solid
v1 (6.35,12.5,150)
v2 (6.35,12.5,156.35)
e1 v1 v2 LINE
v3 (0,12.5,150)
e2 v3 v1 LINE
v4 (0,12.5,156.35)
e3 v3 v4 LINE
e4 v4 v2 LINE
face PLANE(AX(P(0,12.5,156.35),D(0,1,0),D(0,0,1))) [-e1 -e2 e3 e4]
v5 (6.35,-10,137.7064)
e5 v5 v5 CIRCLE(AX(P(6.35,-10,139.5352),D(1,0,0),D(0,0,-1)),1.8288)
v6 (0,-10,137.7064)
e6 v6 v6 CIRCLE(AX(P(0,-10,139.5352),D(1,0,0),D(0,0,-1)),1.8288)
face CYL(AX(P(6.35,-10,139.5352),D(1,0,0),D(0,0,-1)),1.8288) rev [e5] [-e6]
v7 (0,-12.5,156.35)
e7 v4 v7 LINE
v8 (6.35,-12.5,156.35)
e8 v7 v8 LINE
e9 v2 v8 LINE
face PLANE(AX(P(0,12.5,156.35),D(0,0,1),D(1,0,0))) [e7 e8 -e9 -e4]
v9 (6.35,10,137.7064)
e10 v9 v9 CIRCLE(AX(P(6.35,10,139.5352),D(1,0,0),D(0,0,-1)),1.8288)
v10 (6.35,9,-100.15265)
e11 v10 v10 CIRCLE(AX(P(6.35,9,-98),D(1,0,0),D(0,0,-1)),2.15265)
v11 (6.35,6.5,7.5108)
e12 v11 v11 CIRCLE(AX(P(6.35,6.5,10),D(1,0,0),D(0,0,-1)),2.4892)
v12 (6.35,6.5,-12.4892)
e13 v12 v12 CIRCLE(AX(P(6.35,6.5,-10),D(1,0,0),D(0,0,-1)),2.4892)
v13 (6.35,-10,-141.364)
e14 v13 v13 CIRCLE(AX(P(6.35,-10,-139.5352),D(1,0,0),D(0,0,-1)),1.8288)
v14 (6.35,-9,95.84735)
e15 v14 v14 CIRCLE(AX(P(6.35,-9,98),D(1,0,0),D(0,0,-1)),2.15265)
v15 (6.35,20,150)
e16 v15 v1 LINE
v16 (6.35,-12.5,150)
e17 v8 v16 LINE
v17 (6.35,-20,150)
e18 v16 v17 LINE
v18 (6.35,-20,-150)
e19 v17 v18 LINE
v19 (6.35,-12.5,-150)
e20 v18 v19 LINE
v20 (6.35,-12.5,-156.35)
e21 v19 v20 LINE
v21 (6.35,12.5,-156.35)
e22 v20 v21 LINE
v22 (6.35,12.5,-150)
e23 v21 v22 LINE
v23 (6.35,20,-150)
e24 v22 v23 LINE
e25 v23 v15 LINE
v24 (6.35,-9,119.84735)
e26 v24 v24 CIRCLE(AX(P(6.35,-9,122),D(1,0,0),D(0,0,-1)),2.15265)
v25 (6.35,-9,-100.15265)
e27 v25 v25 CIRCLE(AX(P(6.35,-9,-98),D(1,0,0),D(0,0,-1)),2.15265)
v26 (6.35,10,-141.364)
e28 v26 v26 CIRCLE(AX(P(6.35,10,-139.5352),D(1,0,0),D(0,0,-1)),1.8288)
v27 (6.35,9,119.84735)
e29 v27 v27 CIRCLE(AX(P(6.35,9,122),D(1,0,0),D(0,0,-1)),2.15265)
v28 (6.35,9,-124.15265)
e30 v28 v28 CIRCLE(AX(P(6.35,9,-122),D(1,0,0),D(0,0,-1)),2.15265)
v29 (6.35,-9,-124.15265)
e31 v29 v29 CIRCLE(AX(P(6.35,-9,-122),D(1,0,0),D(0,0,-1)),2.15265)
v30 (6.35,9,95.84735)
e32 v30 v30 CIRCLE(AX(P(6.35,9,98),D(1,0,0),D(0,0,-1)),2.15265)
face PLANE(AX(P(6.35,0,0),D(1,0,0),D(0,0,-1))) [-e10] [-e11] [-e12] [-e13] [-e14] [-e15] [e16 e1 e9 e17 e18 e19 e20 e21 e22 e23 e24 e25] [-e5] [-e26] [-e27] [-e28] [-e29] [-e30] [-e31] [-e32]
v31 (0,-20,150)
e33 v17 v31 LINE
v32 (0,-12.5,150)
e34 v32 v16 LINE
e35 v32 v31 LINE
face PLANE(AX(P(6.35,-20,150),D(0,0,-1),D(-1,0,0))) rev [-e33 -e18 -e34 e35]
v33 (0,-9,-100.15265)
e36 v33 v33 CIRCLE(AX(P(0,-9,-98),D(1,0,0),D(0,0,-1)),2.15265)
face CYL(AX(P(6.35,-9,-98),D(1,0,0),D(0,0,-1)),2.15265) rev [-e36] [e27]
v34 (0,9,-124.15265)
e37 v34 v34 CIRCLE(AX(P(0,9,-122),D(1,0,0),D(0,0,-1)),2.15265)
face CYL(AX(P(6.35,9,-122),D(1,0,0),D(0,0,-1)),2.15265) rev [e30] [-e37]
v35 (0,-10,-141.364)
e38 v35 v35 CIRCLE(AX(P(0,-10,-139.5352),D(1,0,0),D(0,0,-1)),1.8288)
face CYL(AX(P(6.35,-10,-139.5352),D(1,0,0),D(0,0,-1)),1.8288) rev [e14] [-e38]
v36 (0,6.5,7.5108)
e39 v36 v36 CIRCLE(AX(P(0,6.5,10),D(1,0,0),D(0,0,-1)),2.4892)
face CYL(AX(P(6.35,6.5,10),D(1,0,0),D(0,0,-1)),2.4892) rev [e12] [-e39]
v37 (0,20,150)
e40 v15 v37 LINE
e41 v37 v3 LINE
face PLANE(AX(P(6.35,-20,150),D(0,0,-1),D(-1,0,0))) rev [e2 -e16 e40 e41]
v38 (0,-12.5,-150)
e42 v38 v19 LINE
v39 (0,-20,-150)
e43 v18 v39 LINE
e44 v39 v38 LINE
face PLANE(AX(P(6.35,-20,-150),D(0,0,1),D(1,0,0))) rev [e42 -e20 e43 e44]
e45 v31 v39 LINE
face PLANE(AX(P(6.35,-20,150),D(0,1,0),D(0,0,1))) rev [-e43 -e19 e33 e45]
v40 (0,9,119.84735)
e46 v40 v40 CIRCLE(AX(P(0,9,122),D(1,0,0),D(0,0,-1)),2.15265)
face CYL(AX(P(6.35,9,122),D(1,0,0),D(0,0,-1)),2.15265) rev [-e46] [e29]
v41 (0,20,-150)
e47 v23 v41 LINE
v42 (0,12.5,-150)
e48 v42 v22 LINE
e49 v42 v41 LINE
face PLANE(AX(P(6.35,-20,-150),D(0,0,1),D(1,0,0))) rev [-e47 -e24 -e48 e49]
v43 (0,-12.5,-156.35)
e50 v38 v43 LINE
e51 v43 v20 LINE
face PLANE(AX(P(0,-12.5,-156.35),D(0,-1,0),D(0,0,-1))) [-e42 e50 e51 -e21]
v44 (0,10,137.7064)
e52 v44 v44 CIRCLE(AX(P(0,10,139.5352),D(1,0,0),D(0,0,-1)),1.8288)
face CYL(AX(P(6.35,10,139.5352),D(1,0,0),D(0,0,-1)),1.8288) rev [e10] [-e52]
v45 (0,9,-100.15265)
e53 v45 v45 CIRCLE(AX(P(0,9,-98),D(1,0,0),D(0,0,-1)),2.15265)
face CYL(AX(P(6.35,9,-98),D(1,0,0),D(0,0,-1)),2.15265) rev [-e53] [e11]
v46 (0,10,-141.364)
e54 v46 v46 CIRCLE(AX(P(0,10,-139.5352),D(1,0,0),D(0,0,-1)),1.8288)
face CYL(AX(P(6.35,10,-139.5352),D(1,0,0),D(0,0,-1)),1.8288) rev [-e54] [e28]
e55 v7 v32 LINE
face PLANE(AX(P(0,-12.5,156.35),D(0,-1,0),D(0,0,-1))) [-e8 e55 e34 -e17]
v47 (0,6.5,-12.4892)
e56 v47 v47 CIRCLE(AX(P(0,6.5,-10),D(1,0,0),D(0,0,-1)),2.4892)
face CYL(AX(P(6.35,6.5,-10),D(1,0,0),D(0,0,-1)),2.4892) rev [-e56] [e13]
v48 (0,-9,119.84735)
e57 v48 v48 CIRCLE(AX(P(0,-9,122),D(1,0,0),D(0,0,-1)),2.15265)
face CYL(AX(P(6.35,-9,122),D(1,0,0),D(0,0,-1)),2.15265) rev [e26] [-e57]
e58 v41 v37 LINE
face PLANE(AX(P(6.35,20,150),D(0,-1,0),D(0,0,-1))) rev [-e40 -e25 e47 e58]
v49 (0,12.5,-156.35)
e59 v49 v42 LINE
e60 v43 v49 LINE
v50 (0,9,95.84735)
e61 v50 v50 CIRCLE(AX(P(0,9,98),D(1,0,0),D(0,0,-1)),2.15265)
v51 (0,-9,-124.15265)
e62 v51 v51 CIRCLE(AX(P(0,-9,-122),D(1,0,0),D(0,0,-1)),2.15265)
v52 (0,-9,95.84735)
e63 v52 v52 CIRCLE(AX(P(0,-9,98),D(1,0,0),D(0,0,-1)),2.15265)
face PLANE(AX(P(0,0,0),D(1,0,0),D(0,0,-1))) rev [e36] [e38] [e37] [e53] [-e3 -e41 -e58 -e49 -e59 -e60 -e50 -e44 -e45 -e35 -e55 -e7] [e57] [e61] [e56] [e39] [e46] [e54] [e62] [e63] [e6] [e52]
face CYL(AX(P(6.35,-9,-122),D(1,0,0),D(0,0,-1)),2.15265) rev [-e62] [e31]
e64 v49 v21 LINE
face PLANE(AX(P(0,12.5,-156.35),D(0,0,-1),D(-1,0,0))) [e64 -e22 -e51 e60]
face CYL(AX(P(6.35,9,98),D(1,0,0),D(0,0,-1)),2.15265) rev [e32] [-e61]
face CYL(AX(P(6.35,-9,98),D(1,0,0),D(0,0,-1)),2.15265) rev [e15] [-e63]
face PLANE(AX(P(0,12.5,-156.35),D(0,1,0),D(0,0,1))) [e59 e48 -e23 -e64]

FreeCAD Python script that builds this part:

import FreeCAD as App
import Part
import Sketcher

V = App.Vector


def add_polygon(sketch, points):
    """Adds a closed chain of lines whose ends are joined by coincident constraints."""
    first, n = sketch.GeometryCount, len(points)
    for a, b in zip(points, points[1:] + points[:1]):
        sketch.addGeometry(Part.LineSegment(App.Vector(*a, 0), App.Vector(*b, 0)), False)
    for i in range(n):
        sketch.addConstraint(Sketcher.Constraint("Coincident", first + i, 2, first + (i + 1) % n, 1))

doc = App.newDocument("Part")
body = doc.addObject("PartDesign::Body", "Body")

# Sketch on YZ plane
sketch1 = body.newObject("Sketcher::SketchObject", "Sketch")
sketch1.AttachmentSupport = (doc.getObject("YZ_Plane"), [""])
sketch1.MapMode = "FlatFace"
add_polygon(sketch1, [(20, 150), (-20, 150), (-20, -150), (20, -150)])  # lines 0-3
sketch1.addConstraint(Sketcher.Constraint("Horizontal", 0))
sketch1.addConstraint(Sketcher.Constraint("Vertical", 1))
sketch1.addConstraint(Sketcher.Constraint("Horizontal", 2))
sketch1.addConstraint(Sketcher.Constraint("Vertical", 3))
sketch1.addConstraint(Sketcher.Constraint("Symmetric", 0, 2, 2, 2, -1, 1))
sketch1.addConstraint(Sketcher.Constraint("DistanceX", 0, 2, 0, 1, 40.0))
sketch1.addConstraint(Sketcher.Constraint("DistanceY", 1, 2, 1, 1, 300.0))
pad1 = body.newObject("PartDesign::Pad", "Pad")
pad1.Profile = sketch1
pad1.Length = 6.35

# Sketch on YZ plane
sketch2 = body.newObject("Sketcher::SketchObject", "Sketch001")
sketch2.AttachmentSupport = (doc.getObject("YZ_Plane"), [""])
sketch2.MapMode = "FlatFace"
sketch2.AttachmentOffset = App.Placement(V(0, 0, 6.35), App.Rotation())
add_polygon(sketch2, [(12, 156), (-12, 156), (-12, 150), (12, 150)])  # lines 0-3
add_polygon(sketch2, [(12, -150), (-12, -150), (-12, -156), (12, -156)])  # lines 4-7
sketch2.addConstraint(Sketcher.Constraint("Horizontal", 0))
sketch2.addConstraint(Sketcher.Constraint("Vertical", 1))
sketch2.addConstraint(Sketcher.Constraint("Horizontal", 2))
sketch2.addConstraint(Sketcher.Constraint("Vertical", 3))
sketch2.addConstraint(Sketcher.Constraint("Horizontal", 4))
sketch2.addConstraint(Sketcher.Constraint("Vertical", 5))
sketch2.addConstraint(Sketcher.Constraint("Horizontal", 6))
sketch2.addConstraint(Sketcher.Constraint("Vertical", 7))
sketch2.addConstraint(Sketcher.Constraint("Symmetric", 2, 2, 4, 2, -1, 1))
sketch2.addConstraint(Sketcher.Constraint("Symmetric", 0, 2, 6, 2, -1, 1))
sketch2.addConstraint(Sketcher.Constraint("Vertical", 1, 2, 4, 2))
sketch2.addConstraint(Sketcher.Constraint("DistanceX", 0, 2, 0, 1, 25.0))
sketch2.addConstraint(Sketcher.Constraint("DistanceY", -1, 1, 1, 2, 150.0))
sketch2.addConstraint(Sketcher.Constraint("DistanceY", 1, 2, 1, 1, 6.35))
pad2 = body.newObject("PartDesign::Pad", "Pad001")
pad2.Profile = sketch2
pad2.Length = 6.35
pad2.Reversed = True

# Sketch on YZ plane
sketch3 = body.newObject("Sketcher::SketchObject", "Sketch002")
sketch3.AttachmentSupport = (doc.getObject("YZ_Plane"), [""])
sketch3.MapMode = "FlatFace"
sketch3.AttachmentOffset = App.Placement(V(0, 0, 6.35), App.Rotation())
sketch3.addGeometry(Part.Circle(V(6.5, 10, 0), V(0, 0, 1), 2.5), False)
sketch3.addGeometry(Part.Circle(V(6.5, -10, 0), V(0, 0, 1), 2.5), False)
sketch3.addConstraint(Sketcher.Constraint("Equal", 0, 1))
sketch3.addConstraint(Sketcher.Constraint("Symmetric", 0, 3, 1, 3, -1))
sketch3.addConstraint(Sketcher.Constraint("DistanceY", -1, 1, 0, 3, 10.0))
sketch3.addConstraint(Sketcher.Constraint("Diameter", 0, 4.9784))
sketch3.addConstraint(Sketcher.Constraint("DistanceX", -1, 1, 0, 3, 6.5))
doc.recompute()
hole = body.newObject("PartDesign::Hole", "Hole")
hole.Profile = sketch3
hole.ThreadType = "None"
hole.Diameter = 4.9784
hole.DepthType = "ThroughAll"

# Sketch on YZ plane
sketch4 = body.newObject("Sketcher::SketchObject", "Sketch003")
sketch4.AttachmentSupport = (doc.getObject("YZ_Plane"), [""])
sketch4.MapMode = "FlatFace"
sketch4.AttachmentOffset = App.Placement(V(0, 0, 6.35), App.Rotation())
sketch4.addGeometry(Part.Circle(V(9, 122, 0), V(0, 0, 1), 2.2), False)
sketch4.addGeometry(Part.Circle(V(9, 98, 0), V(0, 0, 1), 2.2), False)
sketch4.addGeometry(Part.Circle(V(-9, 98, 0), V(0, 0, 1), 2.2), False)
sketch4.addGeometry(Part.Circle(V(-9, 122, 0), V(0, 0, 1), 2.2), False)
sketch4.addGeometry(Part.Circle(V(9, -98, 0), V(0, 0, 1), 2.2), False)
sketch4.addGeometry(Part.Circle(V(9, -122, 0), V(0, 0, 1), 2.2), False)
sketch4.addGeometry(Part.Circle(V(-9, -122, 0), V(0, 0, 1), 2.2), False)
sketch4.addGeometry(Part.Circle(V(-9, -98, 0), V(0, 0, 1), 2.2), False)
sketch4.addConstraint(Sketcher.Constraint("Equal", 0, 1))
sketch4.addConstraint(Sketcher.Constraint("Equal", 1, 2))
sketch4.addConstraint(Sketcher.Constraint("Equal", 2, 3))
sketch4.addConstraint(Sketcher.Constraint("Equal", 3, 4))
sketch4.addConstraint(Sketcher.Constraint("Equal", 4, 5))
sketch4.addConstraint(Sketcher.Constraint("Equal", 5, 6))
sketch4.addConstraint(Sketcher.Constraint("Equal", 6, 7))
sketch4.addConstraint(Sketcher.Constraint("Symmetric", 2, 3, 4, 3, -1, 1))
sketch4.addConstraint(Sketcher.Constraint("Symmetric", 3, 3, 5, 3, -1, 1))
sketch4.addConstraint(Sketcher.Constraint("Symmetric", 0, 3, 6, 3, -1, 1))
sketch4.addConstraint(Sketcher.Constraint("Symmetric", 1, 3, 7, 3, -1, 1))
sketch4.addConstraint(Sketcher.Constraint("Symmetric", 1, 3, 2, 3, -2))
sketch4.addConstraint(Sketcher.Constraint("Symmetric", 0, 3, 3, 3, -2))
sketch4.addConstraint(Sketcher.Constraint("Vertical", 0, 3, 1, 3))
sketch4.addConstraint(Sketcher.Constraint("DistanceX", -1, 1, 0, 3, 9.0))
sketch4.addConstraint(Sketcher.Constraint("DistanceY", -1, 1, 0, 3, 122.0))
sketch4.addConstraint(Sketcher.Constraint("DistanceY", -1, 1, 1, 3, 98.0))
sketch4.addConstraint(Sketcher.Constraint("Diameter", 0, 4.3053))
doc.recompute()
hole2 = body.newObject("PartDesign::Hole", "Hole001")
hole2.Profile = sketch4
hole2.ThreadType = "None"
hole2.Diameter = 4.3053
hole2.DepthType = "ThroughAll"

# Sketch on YZ plane
sketch5 = body.newObject("Sketcher::SketchObject", "Sketch004")
sketch5.AttachmentSupport = (doc.getObject("YZ_Plane"), [""])
sketch5.MapMode = "FlatFace"
sketch5.AttachmentOffset = App.Placement(V(0, 0, 6.35), App.Rotation())
sketch5.addGeometry(Part.Circle(V(10, 139.5, 0), V(0, 0, 1), 1.8), False)
sketch5.addGeometry(Part.Circle(V(-10, 139.5, 0), V(0, 0, 1), 1.8), False)
sketch5.addGeometry(Part.Circle(V(10, -139.5, 0), V(0, 0, 1), 1.8), False)
sketch5.addGeometry(Part.Circle(V(-10, -139.5, 0), V(0, 0, 1), 1.8), False)
sketch5.addConstraint(Sketcher.Constraint("Equal", 0, 1))
sketch5.addConstraint(Sketcher.Constraint("Equal", 1, 2))
sketch5.addConstraint(Sketcher.Constraint("Equal", 2, 3))
sketch5.addConstraint(Sketcher.Constraint("Symmetric", 1, 3, 2, 3, -1, 1))
sketch5.addConstraint(Sketcher.Constraint("Symmetric", 0, 3, 3, 3, -1, 1))
sketch5.addConstraint(Sketcher.Constraint("Symmetric", 0, 3, 1, 3, -2))
sketch5.addConstraint(Sketcher.Constraint("DistanceX", -1, 1, 0, 3, 10.0))
sketch5.addConstraint(Sketcher.Constraint("Diameter", 0, 3.6576))
sketch5.addConstraint(Sketcher.Constraint("DistanceY", -1, 1, 0, 3, 139.5352))
doc.recompute()
hole3 = body.newObject("PartDesign::Hole", "Hole002")
hole3.Profile = sketch5
hole3.ThreadType = "None"
hole3.Diameter = 3.6576
hole3.DepthType = "ThroughAll"

doc.recompute()
